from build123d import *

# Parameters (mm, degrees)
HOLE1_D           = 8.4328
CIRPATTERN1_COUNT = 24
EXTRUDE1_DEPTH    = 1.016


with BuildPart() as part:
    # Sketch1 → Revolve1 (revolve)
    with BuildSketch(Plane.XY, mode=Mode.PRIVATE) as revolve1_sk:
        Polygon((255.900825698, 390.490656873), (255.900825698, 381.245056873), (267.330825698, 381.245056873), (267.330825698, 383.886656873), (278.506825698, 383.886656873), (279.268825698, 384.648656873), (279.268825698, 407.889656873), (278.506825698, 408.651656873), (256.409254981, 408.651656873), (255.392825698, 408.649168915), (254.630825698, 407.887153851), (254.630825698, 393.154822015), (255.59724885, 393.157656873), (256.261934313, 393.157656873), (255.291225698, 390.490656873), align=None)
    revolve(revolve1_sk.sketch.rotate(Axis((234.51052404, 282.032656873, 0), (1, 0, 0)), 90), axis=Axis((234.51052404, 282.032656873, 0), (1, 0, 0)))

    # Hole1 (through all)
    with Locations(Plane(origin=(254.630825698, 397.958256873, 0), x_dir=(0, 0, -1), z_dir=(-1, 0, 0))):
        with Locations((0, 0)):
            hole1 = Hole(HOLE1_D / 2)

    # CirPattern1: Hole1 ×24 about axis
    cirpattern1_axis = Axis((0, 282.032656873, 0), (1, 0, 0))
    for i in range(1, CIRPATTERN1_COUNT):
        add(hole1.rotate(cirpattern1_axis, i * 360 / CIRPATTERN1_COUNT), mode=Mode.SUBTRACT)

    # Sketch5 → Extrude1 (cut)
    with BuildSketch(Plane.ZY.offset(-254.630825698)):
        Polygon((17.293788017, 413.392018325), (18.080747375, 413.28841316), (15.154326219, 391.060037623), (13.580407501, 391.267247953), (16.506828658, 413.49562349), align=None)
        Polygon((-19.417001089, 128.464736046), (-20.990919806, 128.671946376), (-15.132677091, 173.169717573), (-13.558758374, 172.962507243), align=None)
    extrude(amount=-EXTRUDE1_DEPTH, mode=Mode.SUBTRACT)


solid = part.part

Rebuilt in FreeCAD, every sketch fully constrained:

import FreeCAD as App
import Part
import Sketcher
Q = App.Units.Quantity


def add_polygon(sketch, points):
    """Adds a closed chain of lines whose ends are joined by coincident constraints."""
    first, n = sketch.GeometryCount, len(points)
    for a, b in zip(points, points[1:] + points[:1]):
        sketch.addGeometry(Part.LineSegment(App.Vector(*a, 0), App.Vector(*b, 0)), False)
    for i in range(n):
        sketch.addConstraint(Sketcher.Constraint("Coincident", first + i, 2, first + (i + 1) % n, 1))

doc = App.newDocument("Part")
body = doc.addObject("PartDesign::Body", "Body")

# Sketch on XY plane
sketch1 = body.newObject("Sketcher::SketchObject", "Sketch")
sketch1.AttachmentSupport = (doc.getObject("XY_Plane"), [""])
sketch1.MapMode = "FlatFace"
add_polygon(sketch1, [(255.9, 390.5), (255.9, 381.2), (267.3, 381.2), (267.3, 383.9), (278.5, 383.9), (279.3, 384.6), (279.3, 407.9), (278.5, 408.7), (256.4, 408.7), (255.4, 408.6), (254.6, 407.9), (254.6, 393.2), (255.6, 393.2), (256.3, 393.2), (255.3, 390.5)])  # lines 0-14
sketch1.addGeometry(Part.LineSegment(App.Vector(254.6, 282, 0), App.Vector(279.3, 282, 0)), True)  # axis
sketch1.addConstraint([
    Sketcher.Constraint("Vertical", 0),
    Sketcher.Constraint("Horizontal", 1),
    Sketcher.Constraint("Vertical", 2),
    Sketcher.Constraint("Horizontal", 3),
    Sketcher.Constraint("Vertical", 5),
    Sketcher.Constraint("Horizontal", 7),
    Sketcher.Constraint("Vertical", 10),
    Sketcher.Constraint("Horizontal", 12),
    Sketcher.Constraint("Horizontal", 14),
    Sketcher.Constraint("Horizontal", 15),
    Sketcher.Constraint("Perpendicular", 4, 6),
    Sketcher.Constraint("Vertical", 3, 2, 6, 2),
    Sketcher.Constraint("Vertical", 10, 2, 15, 1),
    Sketcher.Constraint("Vertical", 5, 2, 15, 2),
    Sketcher.Constraint("Equal", 4, 6),
    Sketcher.Constraint("Angle", 13, Q("-110 deg")),
    Sketcher.Constraint("DistanceX", 1, 1, 1, 2, Q("0.45 in")),
    Sketcher.Constraint("DistanceX", 3, 1, 3, 2, Q("0.44 in")),
    Sketcher.Constraint("DistanceX", 15, 1, 15, 2, Q("0.97 in")),
    Sketcher.Constraint("DistanceX", 10, 2, 2, 2, Q("0.5 in")),
    Sketcher.Constraint("DistanceX", 14, 1, 14, 2, Q("0.024 in")),
    Sketcher.Constraint("DistanceY", 0, 2, 0, 1, Q("0.364 in")),
    Sketcher.Constraint("DistanceY", 2, 1, 2, 2, Q("0.104 in")),
    Sketcher.Constraint("DistanceY", 5, 1, 5, 2, Q("0.915 in")),
    Sketcher.Constraint("DistanceX", 8, 2, 6, 2, Q("0.91 in")),
    Sketcher.Constraint("DistanceY", 15, 1, 2, 2, Q("4.01 in")),
    Sketcher.Constraint("DistanceY", 0, 2, 11, 2, Q("0.469 in")),
    Sketcher.Constraint("DistanceX", 7, 2, 7, 1, 22.097571),
    Sketcher.Constraint("DistanceY", 10, 2, 10, 1, 14.732332),
    Sketcher.Constraint("Distance", 9, 1.077641),
    Sketcher.Constraint("DistanceX", 12, 1, 12, 2, 0.664685),
    Sketcher.Constraint("DistanceY", -1, 1, 8, 2, 408.649169),
    Sketcher.Constraint("DistanceX", -1, 1, 11, 2, 255.597249),
    Sketcher.Constraint("DistanceY", -1, 1, 0, 2, 381.245057),
])
revolution = body.newObject("PartDesign::Revolution", "Revolution")
revolution.Profile = sketch1
revolution.ReferenceAxis = (sketch1, ["Axis0"])
revolution.Angle = 360

# Sketch on YZ plane
sketch2 = body.newObject("Sketcher::SketchObject", "Sketch001")
sketch2.AttachmentSupport = (doc.getObject("YZ_Plane"), [""])
sketch2.MapMode = "FlatFace"
sketch2.AttachmentOffset = App.Placement(App.Vector(0, 0, 254.630826), App.Rotation())
sketch2.addGeometry(Part.Circle(App.Vector(398, 0, 0), App.Vector(0, 0, 1), 4.2), False)
sketch2.addConstraint([
    Sketcher.Constraint("PointOnObject", 0, 3, -1),
    Sketcher.Constraint("Diameter", 0, Q("0.332 in")),
    Sketcher.Constraint("DistanceX", -1, 1, 0, 3, 397.958257),
])
doc.recompute()
hole = body.newObject("PartDesign::Hole", "Hole")
hole.Profile = sketch2
hole.ThreadType = "None"
hole.Diameter = Q("0.332 in")
hole.DepthType = "ThroughAll"
hole.Reversed = True
doc.recompute()

datumline = body.newObject("PartDesign::Line", "DatumLine")
datumline.Placement = App.Placement(App.Vector(0, 282.032657, 0), App.Rotation(App.Vector(0, 0, 1), App.Vector(1, 0, 0)))
polarpattern = body.newObject("PartDesign::PolarPattern", "PolarPattern")
polarpattern.Originals = [hole]
polarpattern.Axis = (datumline, [""])
polarpattern.Angle = 360
polarpattern.Occurrences = 24
body.Tip = polarpattern

# Sketch on YZ plane
sketch3 = body.newObject("Sketcher::SketchObject", "Sketch002")
sketch3.AttachmentSupport = (doc.getObject("YZ_Plane"), [""])
sketch3.MapMode = "FlatFace"
sketch3.AttachmentOffset = App.Placement(App.Vector(0, 0, 254.630826), App.Rotation())
add_polygon(sketch3, [(413.3, 18.1), (413.4, 17.3), (413.5, 16.5), (391.3, 13.6), (391.1, 15.2)])  # lines 0-4
add_polygon(sketch3, [(128.7, -21), (128.5, -19.4), (173, -13.6), (173.2, -15.1)])  # lines 5-8
sketch3.addConstraint([
    Sketcher.Constraint("Parallel", 0, 1),
    Sketcher.Constraint("Perpendicular", 1, 2),
    Sketcher.Constraint("Perpendicular", 2, 3),
    Sketcher.Constraint("Perpendicular", 3, 4),
    Sketcher.Constraint("Perpendicular", 4, 5),
    Sketcher.Constraint("Perpendicular", 5, 6),
    Sketcher.Constraint("Perpendicular", 6, 7),
    Sketcher.Constraint("Perpendicular", 7, 8),
    Sketcher.Constraint("Equal", 0, 1),
    Sketcher.Constraint("Equal", 3, 5),
    Sketcher.Constraint("Angle", 0, Q("-82.5 deg")),
    Sketcher.Constraint("Distance", 0, Q("0.03125 in")),
    Sketcher.Constraint("DistanceY", 5, 2, -1, 1, 19.417001),
    Sketcher.Constraint("DistanceX", 5, 2, 3, 2, 262.595302),
    Sketcher.Constraint("Distance", 6, 44.881741),
    Sketcher.Constraint("DistanceX", -1, 1, 0, 2, 413.392018),
    Sketcher.Constraint("DistanceY", -1, 1, 0, 2, 17.293788),
    Sketcher.Constraint("DistanceY", 2, 2, 1, 2, 2.926421),
])
pocket1 = body.newObject("PartDesign::Pocket", "Pocket")
pocket1.Profile = sketch3
pocket1.Length = Q("0.04 in")
pocket1.Reversed = True

doc.recompute()
